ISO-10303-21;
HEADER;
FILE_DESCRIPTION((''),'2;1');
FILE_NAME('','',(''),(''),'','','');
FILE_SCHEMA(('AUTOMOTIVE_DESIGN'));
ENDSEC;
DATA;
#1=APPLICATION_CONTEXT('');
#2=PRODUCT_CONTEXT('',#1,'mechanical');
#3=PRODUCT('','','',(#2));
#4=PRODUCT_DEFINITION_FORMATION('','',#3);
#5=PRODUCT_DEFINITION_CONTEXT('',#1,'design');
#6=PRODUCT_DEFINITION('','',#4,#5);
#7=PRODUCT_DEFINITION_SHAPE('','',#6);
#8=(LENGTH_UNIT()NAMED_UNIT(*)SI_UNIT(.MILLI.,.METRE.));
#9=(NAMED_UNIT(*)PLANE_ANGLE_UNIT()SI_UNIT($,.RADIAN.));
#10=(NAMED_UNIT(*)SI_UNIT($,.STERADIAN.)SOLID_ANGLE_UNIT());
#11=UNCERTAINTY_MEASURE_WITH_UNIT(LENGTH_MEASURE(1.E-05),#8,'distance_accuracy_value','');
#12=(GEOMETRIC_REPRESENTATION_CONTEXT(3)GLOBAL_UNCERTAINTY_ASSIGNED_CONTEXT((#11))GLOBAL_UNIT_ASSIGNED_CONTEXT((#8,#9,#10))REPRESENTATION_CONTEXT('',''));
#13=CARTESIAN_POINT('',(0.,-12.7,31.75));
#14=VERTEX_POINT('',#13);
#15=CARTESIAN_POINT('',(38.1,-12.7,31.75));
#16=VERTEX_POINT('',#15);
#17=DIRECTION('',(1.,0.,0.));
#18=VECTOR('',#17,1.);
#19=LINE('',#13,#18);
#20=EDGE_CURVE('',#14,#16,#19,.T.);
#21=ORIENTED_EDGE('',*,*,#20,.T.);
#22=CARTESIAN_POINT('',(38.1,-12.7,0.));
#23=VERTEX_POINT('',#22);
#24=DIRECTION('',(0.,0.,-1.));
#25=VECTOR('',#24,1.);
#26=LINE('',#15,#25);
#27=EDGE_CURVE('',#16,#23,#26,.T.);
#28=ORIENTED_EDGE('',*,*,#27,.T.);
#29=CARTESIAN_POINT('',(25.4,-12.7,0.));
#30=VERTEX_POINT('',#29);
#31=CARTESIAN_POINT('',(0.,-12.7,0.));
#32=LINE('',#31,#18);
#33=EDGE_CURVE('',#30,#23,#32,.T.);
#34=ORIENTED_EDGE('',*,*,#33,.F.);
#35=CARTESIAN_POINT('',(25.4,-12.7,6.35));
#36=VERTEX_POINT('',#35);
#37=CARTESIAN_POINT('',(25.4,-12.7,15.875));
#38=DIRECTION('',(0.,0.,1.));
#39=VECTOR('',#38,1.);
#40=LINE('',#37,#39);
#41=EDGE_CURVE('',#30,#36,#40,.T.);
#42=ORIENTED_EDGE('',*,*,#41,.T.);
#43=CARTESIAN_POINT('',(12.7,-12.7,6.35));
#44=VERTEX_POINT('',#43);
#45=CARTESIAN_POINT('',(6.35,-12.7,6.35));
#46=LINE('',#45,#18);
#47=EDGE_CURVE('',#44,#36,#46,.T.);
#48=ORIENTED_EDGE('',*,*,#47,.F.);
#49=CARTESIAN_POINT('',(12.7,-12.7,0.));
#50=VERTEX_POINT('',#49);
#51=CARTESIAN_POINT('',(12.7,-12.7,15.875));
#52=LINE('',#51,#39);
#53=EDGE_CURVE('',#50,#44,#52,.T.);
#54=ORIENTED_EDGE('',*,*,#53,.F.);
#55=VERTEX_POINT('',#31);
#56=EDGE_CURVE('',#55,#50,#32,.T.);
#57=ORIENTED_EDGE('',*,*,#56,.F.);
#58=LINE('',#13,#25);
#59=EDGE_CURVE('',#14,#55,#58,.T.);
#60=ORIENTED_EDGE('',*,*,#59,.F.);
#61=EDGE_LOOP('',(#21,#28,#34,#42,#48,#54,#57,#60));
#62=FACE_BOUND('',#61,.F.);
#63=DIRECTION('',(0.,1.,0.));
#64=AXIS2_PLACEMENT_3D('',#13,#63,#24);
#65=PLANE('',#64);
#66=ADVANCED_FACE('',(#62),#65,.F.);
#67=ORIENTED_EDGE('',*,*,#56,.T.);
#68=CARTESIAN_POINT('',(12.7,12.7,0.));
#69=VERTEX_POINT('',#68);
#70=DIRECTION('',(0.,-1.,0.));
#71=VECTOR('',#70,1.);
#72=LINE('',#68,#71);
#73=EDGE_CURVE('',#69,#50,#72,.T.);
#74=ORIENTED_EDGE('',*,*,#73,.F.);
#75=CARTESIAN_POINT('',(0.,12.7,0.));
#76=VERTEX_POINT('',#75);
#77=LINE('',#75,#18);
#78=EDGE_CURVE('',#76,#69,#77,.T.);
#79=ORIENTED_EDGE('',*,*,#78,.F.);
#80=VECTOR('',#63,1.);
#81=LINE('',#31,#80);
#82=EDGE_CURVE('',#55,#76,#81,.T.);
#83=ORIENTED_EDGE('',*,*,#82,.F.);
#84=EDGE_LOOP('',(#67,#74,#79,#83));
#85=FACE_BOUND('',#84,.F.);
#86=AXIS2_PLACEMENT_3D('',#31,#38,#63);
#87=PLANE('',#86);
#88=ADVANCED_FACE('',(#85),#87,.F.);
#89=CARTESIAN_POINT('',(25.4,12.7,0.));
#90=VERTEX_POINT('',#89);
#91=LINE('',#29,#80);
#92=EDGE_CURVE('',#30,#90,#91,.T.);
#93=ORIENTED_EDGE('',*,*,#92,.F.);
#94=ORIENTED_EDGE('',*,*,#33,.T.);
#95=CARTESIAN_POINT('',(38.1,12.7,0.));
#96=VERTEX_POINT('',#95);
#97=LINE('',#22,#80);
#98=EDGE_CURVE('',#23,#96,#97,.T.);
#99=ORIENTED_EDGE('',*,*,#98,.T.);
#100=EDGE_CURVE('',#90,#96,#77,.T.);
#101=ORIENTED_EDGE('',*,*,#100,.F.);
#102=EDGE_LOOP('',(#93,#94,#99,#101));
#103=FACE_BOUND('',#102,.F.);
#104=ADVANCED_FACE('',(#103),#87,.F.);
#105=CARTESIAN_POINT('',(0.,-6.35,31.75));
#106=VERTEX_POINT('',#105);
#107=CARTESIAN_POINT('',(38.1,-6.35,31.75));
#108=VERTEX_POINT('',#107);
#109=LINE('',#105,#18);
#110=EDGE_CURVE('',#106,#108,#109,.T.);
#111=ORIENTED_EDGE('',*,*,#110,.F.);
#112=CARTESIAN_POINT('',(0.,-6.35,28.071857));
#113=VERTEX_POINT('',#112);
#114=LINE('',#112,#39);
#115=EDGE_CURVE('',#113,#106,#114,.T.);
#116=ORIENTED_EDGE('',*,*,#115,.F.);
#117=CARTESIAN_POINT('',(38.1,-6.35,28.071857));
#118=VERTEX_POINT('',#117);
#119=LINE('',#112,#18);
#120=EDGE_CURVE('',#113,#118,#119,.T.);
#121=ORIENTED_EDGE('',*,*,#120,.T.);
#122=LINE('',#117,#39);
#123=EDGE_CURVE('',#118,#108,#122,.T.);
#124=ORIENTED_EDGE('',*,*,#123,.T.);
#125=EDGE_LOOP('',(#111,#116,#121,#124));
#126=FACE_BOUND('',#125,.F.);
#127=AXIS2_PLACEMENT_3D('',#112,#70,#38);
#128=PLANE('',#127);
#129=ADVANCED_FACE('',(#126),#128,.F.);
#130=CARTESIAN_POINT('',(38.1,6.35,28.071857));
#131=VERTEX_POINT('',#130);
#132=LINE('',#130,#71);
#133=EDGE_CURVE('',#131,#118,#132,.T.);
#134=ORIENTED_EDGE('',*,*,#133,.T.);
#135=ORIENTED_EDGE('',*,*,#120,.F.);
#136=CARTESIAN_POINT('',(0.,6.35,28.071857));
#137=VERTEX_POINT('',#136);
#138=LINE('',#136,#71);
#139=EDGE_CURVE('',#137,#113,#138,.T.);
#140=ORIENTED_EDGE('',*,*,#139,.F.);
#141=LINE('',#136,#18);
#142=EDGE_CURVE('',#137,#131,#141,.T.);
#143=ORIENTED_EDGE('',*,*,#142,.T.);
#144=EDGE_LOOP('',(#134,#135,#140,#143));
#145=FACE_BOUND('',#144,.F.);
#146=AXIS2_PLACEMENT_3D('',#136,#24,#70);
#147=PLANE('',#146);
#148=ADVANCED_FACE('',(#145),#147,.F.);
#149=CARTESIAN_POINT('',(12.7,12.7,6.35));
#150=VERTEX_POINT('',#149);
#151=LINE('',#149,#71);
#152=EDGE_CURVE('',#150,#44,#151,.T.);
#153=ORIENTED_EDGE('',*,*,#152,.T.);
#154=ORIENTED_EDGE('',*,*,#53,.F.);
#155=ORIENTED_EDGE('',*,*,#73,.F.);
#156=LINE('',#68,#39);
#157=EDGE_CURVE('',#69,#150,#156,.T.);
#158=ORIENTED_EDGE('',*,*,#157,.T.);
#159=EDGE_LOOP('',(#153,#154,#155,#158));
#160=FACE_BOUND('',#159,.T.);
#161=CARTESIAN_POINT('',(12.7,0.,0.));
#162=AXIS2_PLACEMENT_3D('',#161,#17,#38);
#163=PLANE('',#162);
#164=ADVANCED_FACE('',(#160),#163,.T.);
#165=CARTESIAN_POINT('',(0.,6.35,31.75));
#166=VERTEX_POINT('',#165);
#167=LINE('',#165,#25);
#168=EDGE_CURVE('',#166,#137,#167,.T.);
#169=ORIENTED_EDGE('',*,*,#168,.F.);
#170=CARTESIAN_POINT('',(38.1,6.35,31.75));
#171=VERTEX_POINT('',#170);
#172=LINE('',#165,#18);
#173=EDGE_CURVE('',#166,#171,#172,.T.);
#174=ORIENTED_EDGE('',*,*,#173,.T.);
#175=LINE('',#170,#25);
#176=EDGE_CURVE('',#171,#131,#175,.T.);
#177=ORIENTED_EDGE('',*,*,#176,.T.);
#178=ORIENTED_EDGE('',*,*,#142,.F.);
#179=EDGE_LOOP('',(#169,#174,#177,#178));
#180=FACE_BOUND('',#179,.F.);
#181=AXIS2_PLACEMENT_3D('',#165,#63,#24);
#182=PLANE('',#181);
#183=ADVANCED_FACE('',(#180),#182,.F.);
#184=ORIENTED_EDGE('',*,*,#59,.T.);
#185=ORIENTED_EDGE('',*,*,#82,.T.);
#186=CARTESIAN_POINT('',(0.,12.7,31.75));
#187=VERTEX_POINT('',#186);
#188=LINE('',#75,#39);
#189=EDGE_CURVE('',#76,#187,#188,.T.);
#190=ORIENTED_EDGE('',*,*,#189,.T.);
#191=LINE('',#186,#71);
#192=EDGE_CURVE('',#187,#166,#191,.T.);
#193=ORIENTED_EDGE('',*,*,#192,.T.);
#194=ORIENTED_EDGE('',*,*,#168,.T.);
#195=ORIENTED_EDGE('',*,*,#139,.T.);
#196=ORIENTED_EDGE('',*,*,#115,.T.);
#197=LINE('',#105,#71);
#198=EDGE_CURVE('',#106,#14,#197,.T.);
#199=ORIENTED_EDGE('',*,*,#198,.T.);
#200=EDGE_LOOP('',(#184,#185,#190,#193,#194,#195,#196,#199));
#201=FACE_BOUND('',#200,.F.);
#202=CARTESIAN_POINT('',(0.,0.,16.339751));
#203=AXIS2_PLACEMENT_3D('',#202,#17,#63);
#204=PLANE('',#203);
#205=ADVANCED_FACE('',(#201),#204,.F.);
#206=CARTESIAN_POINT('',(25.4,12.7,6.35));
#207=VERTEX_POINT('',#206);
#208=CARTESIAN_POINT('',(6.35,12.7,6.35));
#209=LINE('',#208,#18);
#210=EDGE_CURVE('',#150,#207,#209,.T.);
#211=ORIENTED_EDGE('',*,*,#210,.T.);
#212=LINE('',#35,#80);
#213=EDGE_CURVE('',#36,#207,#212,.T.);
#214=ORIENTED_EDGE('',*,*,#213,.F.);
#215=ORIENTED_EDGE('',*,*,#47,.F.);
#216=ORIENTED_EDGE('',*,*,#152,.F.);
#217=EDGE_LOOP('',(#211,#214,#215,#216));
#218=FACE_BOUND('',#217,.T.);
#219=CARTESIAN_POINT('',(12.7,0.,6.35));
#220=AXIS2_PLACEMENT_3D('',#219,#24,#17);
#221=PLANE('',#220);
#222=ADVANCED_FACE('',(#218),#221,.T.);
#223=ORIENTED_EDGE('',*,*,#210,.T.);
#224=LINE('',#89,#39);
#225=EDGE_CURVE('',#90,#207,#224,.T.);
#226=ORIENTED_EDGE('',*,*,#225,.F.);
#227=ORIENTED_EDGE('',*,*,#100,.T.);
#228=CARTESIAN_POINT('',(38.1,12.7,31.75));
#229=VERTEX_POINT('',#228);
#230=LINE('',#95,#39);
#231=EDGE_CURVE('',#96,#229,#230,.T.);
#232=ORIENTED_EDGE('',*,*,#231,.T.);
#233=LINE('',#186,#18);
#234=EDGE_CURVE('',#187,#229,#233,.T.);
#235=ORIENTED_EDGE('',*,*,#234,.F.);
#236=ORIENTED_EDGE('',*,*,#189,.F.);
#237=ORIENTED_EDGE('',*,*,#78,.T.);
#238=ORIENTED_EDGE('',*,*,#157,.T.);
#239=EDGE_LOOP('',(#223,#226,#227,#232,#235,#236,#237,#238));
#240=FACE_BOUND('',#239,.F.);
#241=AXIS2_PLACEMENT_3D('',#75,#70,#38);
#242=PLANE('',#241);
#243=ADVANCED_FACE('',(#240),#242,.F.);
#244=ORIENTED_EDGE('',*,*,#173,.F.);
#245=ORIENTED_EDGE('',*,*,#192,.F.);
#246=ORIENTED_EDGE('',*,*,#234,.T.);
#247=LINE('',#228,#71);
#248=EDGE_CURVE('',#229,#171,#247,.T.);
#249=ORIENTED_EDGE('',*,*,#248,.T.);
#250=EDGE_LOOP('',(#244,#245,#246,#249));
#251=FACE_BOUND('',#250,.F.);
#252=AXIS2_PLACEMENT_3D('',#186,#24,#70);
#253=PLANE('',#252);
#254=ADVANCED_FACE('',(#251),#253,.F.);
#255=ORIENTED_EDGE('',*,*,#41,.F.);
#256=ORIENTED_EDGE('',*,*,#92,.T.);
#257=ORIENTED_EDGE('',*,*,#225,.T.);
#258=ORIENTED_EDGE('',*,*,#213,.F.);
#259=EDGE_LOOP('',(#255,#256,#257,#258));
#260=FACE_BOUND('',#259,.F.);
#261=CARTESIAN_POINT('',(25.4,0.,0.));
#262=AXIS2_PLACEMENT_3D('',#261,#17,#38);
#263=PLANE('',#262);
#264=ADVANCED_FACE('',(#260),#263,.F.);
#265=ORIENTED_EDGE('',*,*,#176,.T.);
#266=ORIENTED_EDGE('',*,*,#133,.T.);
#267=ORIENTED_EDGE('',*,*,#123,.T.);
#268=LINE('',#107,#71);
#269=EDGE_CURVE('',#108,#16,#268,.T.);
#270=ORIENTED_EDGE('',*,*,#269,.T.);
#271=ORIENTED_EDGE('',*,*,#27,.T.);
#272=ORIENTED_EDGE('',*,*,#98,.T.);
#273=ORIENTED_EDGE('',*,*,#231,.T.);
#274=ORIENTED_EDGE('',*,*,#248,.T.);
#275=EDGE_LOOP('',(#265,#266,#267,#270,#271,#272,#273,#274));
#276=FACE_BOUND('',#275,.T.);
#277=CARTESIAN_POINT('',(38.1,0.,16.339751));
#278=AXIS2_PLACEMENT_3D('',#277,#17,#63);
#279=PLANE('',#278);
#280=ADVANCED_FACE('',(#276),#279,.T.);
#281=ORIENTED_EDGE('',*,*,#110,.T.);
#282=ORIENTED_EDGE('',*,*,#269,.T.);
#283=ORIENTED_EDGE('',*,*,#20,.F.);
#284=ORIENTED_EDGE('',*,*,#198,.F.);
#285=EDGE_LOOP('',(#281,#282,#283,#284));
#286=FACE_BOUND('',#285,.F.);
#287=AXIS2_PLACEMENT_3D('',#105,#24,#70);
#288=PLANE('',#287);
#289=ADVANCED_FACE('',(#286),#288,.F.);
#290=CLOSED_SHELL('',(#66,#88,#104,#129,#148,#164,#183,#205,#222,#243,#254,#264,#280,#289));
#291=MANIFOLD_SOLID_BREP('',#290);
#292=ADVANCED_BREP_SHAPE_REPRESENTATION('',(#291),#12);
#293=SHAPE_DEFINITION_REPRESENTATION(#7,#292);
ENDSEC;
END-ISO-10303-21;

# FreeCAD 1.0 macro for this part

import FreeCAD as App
import Part
import Sketcher
Q = App.Units.Quantity


def add_polygon(sketch, points):
    """Adds a closed chain of lines whose ends are joined by coincident constraints."""
    first, n = sketch.GeometryCount, len(points)
    for a, b in zip(points, points[1:] + points[:1]):
        sketch.addGeometry(Part.LineSegment(App.Vector(*a, 0), App.Vector(*b, 0)), False)
    for i in range(n):
        sketch.addConstraint(Sketcher.Constraint("Coincident", first + i, 2, first + (i + 1) % n, 1))

doc = App.newDocument("Part")
body = doc.addObject("PartDesign::Body", "Body")

# Sketch on YZ plane
sketch1 = body.newObject("Sketcher::SketchObject", "Sketch")
sketch1.AttachmentSupport = (doc.getObject("YZ_Plane"), [""])
sketch1.MapMode = "FlatFace"
add_polygon(sketch1, [(-12.7, 0), (12.7, 0), (12.7, 31.8), (6.3, 31.8), (6.3, 28.1), (-6.3, 28.1), (-6.3, 31.8), (-12.7, 31.8)])  # lines 0-7
sketch1.addConstraint(Sketcher.Constraint("Horizontal", 0))
sketch1.addConstraint(Sketcher.Constraint("Vertical", 1))
sketch1.addConstraint(Sketcher.Constraint("Horizontal", 2))
sketch1.addConstraint(Sketcher.Constraint("Vertical", 3))
sketch1.addConstraint(Sketcher.Constraint("Horizontal", 4))
sketch1.addConstraint(Sketcher.Constraint("Vertical", 5))
sketch1.addConstraint(Sketcher.Constraint("Horizontal", 6))
sketch1.addConstraint(Sketcher.Constraint("Vertical", 7))
sketch1.addConstraint(Sketcher.Constraint("Symmetric", 0, 2, 7, 2, -1, 1))
sketch1.addConstraint(Sketcher.Constraint("Symmetric", 2, 2, 5, 2, -2))
sketch1.addConstraint(Sketcher.Constraint("DistanceX", 0, 1, 0, 2, Q("1 in")))
sketch1.addConstraint(Sketcher.Constraint("DistanceX", 4, 2, 4, 1, Q("0.5 in")))
sketch1.addConstraint(Sketcher.Constraint("DistanceY", 1, 1, 1, 2, Q("1.25 in")))
sketch1.addConstraint(Sketcher.Constraint("DistanceY", 3, 2, 3, 1, 3.678143))
pad1 = body.newObject("PartDesign::Pad", "Pad")
pad1.Profile = sketch1
pad1.Length = Q("1.5 in")

# Sketch on XZ plane
sketch2 = body.newObject("Sketcher::SketchObject", "Sketch001")
sketch2.AttachmentSupport = (doc.getObject("XZ_Plane"), [""])
sketch2.MapMode = "FlatFace"
add_polygon(sketch2, [(13, 6), (13, 0), (25, 0), (25, 6)])  # lines 0-3
sketch2.addConstraint(Sketcher.Constraint("Vertical", 0))
sketch2.addConstraint(Sketcher.Constraint("Horizontal", 1))
sketch2.addConstraint(Sketcher.Constraint("Vertical", 2))
sketch2.addConstraint(Sketcher.Constraint("Horizontal", 3))
sketch2.addConstraint(Sketcher.Constraint("PointOnObject", 0, 2, -1))
sketch2.addConstraint(Sketcher.Constraint("DistanceX", 1, 1, 1, 2, Q("0.5 in")))
sketch2.addConstraint(Sketcher.Constraint("DistanceX", -1, 1, 1, 2, Q("1 in")))
sketch2.addConstraint(Sketcher.Constraint("DistanceY", 0, 2, 0, 1, Q("0.25 in")))
pocket1 = body.newObject("PartDesign::Pocket", "Pocket")
pocket1.Profile = sketch2
pocket1.Length = Q("1 in")

# Sketch on XZ plane
sketch3 = body.newObject("Sketcher::SketchObject", "Sketch002")
sketch3.AttachmentSupport = (doc.getObject("XZ_Plane"), [""])
sketch3.MapMode = "FlatFace"
add_polygon(sketch3, [(13, 6), (13, 0), (25, 0), (25, 6)])  # lines 0-3
sketch3.addConstraint(Sketcher.Constraint("Vertical", 0))
sketch3.addConstraint(Sketcher.Constraint("Horizontal", 1))
sketch3.addConstraint(Sketcher.Constraint("Vertical", 2))
sketch3.addConstraint(Sketcher.Constraint("Horizontal", 3))
sketch3.addConstraint(Sketcher.Constraint("PointOnObject", 0, 2, -1))
sketch3.addConstraint(Sketcher.Constraint("DistanceX", 1, 1, 1, 2, Q("0.5 in")))
sketch3.addConstraint(Sketcher.Constraint("DistanceX", -1, 1, 1, 2, Q("1 in")))
sketch3.addConstraint(Sketcher.Constraint("DistanceY", 0, 2, 0, 1, Q("0.25 in")))
pocket2 = body.newObject("PartDesign::Pocket", "Pocket001")
pocket2.Profile = sketch3
pocket2.Length = Q("2 in")

# Sketch on XZ plane
sketch4 = body.newObject("Sketcher::SketchObject", "Sketch003")
sketch4.AttachmentSupport = (doc.getObject("XZ_Plane"), [""])
sketch4.MapMode = "FlatFace"
add_polygon(sketch4, [(13, 6), (13, 0), (25, 0), (25, 6)])  # lines 0-3
sketch4.addConstraint(Sketcher.Constraint("Vertical", 0))
sketch4.addConstraint(Sketcher.Constraint("Horizontal", 1))
sketch4.addConstraint(Sketcher.Constraint("Vertical", 2))
sketch4.addConstraint(Sketcher.Constraint("Horizontal", 3))
sketch4.addConstraint(Sketcher.Constraint("PointOnObject", 0, 2, -1))
sketch4.addConstraint(Sketcher.Constraint("DistanceX", 1, 1, 1, 2, Q("0.5 in")))
sketch4.addConstraint(Sketcher.Constraint("DistanceX", -1, 1, 1, 2, Q("1 in")))
sketch4.addConstraint(Sketcher.Constraint("DistanceY", 0, 2, 0, 1, Q("0.25 in")))
pocket3 = body.newObject("PartDesign::Pocket", "Pocket002")
pocket3.Profile = sketch4
pocket3.Length = Q("1 in")
pocket3.Reversed = True

doc.recompute()
